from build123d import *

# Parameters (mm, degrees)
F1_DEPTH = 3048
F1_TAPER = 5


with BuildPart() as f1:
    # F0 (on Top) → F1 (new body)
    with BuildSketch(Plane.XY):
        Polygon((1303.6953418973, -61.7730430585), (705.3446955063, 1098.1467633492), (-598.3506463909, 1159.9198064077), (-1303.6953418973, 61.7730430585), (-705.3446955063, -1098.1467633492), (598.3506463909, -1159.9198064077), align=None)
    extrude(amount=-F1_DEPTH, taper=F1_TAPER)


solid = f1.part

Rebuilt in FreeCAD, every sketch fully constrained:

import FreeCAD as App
import Part
import Sketcher

V = App.Vector
Q = App.Units.Quantity


def add_polygon(sketch, points):
    """Adds a closed chain of lines whose ends are joined by coincident constraints."""
    first, n = sketch.GeometryCount, len(points)
    for a, b in zip(points, points[1:] + points[:1]):
        sketch.addGeometry(Part.LineSegment(App.Vector(*a, 0), App.Vector(*b, 0)), False)
    for i in range(n):
        sketch.addConstraint(Sketcher.Constraint("Coincident", first + i, 2, first + (i + 1) % n, 1))

doc = App.newDocument("Part")
body = doc.addObject("PartDesign::Body", "Body")

# Sketch on XY plane
sketch1 = body.newObject("Sketcher::SketchObject", "Sketch")
sketch1.AttachmentSupport = (doc.getObject("XY_Plane"), [""])
sketch1.MapMode = "FlatFace"
add_polygon(sketch1, [(1304, -62), (705, 1098), (-598, 1160), (-1304, 62), (-705, -1098), (598, -1160)])  # lines 0-5
sketch1.addConstraint(Sketcher.Constraint("Symmetric", 0, 2, 3, 2, -1, 1))
sketch1.addConstraint(Sketcher.Constraint("Symmetric", 1, 2, 4, 2, -1, 1))
sketch1.addConstraint(Sketcher.Constraint("Symmetric", 2, 2, 5, 2, -1, 1))
sketch1.addConstraint(Sketcher.Constraint("Equal", 0, 1))
sketch1.addConstraint(Sketcher.Constraint("Equal", 1, 2))
sketch1.addConstraint(Sketcher.Constraint("Distance", 0, Q("1305.158019 mm")))
sketch1.addConstraint(Sketcher.Constraint("DistanceX", 2, 2, -1, 1, Q("1303.695342 mm")))
sketch1.addConstraint(Sketcher.Constraint("DistanceX", 1, 2, 0, 2, Q("1303.695342 mm")))
sketch1.addConstraint(Sketcher.Constraint("DistanceY", 2, 2, 0, 2, Q("1036.37372 mm")))
pad1 = body.newObject("PartDesign::Pad", "Pad")
pad1.Profile = sketch1
pad1.Length = Q("120 in")
pad1.Reversed = True
pad1.TaperAngle = -5

doc.recompute()
